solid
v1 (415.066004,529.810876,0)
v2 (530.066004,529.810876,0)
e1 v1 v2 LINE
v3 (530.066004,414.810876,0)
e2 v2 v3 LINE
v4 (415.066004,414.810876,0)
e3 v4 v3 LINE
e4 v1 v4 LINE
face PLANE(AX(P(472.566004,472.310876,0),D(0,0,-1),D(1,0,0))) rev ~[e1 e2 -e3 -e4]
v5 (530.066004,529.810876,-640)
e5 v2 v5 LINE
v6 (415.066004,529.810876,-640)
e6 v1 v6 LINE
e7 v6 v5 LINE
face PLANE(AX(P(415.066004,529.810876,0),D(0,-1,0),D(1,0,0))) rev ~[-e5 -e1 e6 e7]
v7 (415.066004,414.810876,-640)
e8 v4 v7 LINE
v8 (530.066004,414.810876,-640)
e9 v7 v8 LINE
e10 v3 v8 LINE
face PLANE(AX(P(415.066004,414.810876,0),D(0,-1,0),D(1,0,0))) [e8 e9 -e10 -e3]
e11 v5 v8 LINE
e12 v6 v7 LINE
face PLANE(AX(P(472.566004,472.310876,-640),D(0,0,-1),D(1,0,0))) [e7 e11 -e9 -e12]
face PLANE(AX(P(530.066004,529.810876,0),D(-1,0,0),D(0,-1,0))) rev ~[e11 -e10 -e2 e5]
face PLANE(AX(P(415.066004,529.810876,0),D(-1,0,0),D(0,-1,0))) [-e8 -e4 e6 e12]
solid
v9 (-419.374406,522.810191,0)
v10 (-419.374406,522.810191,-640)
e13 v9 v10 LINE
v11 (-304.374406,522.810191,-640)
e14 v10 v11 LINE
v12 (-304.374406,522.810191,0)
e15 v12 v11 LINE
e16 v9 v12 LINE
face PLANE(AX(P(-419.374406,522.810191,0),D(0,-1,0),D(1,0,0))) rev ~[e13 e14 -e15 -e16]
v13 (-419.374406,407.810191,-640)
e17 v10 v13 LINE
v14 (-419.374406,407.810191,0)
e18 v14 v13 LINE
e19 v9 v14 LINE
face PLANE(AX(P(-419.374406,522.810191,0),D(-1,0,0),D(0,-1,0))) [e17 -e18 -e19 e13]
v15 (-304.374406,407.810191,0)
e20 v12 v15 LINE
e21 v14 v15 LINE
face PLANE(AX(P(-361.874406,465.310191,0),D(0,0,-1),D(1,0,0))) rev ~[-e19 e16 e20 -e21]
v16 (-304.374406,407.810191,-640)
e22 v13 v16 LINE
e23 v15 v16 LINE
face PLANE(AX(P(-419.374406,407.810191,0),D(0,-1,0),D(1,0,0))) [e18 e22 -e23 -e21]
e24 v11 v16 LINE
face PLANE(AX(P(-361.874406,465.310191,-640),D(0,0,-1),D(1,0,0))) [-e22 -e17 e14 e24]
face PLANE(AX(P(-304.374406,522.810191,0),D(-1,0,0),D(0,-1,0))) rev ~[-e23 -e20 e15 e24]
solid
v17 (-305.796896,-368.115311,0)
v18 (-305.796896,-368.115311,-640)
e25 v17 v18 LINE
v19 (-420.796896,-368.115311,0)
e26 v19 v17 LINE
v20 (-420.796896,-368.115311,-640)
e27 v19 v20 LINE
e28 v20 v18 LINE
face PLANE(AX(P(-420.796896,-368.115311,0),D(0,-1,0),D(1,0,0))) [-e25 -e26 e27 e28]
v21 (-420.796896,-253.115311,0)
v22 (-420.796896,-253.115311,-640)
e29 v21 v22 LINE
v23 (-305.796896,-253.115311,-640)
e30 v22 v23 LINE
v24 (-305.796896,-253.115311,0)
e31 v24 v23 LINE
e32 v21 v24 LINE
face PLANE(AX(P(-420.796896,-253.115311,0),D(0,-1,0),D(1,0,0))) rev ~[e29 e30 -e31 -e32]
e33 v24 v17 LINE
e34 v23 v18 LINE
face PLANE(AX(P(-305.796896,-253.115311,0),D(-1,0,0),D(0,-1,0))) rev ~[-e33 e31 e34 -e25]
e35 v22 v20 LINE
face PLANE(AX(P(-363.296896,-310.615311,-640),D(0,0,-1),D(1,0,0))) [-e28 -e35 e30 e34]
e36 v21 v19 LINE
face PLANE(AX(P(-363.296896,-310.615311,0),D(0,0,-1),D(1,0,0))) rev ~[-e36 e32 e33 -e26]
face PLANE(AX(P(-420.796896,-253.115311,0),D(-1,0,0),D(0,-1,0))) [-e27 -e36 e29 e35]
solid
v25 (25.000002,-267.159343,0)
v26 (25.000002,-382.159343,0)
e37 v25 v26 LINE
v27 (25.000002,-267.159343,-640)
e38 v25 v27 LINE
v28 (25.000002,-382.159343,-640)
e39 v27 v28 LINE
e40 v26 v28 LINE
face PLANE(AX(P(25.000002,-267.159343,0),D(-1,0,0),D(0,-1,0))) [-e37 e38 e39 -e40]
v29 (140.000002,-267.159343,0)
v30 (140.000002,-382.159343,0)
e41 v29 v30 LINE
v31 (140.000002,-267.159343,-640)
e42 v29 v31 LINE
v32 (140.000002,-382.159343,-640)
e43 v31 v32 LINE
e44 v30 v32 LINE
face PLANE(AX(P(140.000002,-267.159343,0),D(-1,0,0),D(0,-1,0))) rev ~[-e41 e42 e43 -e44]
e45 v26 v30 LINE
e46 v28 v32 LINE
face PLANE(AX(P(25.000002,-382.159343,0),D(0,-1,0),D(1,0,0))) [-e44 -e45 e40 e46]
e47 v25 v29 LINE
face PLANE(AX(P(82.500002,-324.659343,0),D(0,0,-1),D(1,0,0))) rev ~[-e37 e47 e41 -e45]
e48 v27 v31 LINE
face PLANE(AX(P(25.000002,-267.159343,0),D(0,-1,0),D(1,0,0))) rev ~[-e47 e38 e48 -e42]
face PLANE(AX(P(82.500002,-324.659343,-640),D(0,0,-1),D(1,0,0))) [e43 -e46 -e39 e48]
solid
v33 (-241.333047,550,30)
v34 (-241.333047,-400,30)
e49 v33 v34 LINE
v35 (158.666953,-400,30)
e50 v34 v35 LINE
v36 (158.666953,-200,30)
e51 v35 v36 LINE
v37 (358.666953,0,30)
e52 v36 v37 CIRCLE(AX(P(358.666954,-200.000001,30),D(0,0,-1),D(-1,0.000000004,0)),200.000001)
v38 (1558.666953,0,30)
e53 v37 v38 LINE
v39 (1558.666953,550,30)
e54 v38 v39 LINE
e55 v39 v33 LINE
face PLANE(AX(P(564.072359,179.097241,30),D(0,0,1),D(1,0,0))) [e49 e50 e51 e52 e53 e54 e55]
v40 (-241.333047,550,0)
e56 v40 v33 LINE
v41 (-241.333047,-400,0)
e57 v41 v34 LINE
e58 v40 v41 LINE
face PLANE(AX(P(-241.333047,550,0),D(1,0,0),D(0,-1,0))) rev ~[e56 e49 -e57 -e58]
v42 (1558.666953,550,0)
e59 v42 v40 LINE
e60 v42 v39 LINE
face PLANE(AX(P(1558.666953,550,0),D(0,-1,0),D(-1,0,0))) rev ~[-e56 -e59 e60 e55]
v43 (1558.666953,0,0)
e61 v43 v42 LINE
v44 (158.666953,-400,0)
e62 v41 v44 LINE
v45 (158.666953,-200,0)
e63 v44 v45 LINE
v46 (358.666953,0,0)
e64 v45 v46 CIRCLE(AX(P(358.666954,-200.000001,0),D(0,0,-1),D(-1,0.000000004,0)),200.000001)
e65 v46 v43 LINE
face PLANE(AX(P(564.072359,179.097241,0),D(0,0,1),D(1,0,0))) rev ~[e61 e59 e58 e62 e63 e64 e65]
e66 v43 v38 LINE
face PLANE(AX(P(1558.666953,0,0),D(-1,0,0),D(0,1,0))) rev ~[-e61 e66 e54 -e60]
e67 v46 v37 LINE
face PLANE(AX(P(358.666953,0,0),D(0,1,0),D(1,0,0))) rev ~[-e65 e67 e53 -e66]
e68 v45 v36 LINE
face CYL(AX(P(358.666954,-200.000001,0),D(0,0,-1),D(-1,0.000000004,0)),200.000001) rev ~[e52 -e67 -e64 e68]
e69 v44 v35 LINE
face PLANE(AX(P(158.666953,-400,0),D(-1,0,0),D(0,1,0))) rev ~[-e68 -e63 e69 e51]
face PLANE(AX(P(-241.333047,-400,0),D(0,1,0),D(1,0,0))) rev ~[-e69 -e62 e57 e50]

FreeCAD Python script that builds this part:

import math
import FreeCAD as App
import Part
import Sketcher
Q = App.Units.Quantity

doc = App.newDocument("Part")
body = doc.addObject("PartDesign::Body", "Body")

sketch1 = body.newObject("Sketcher::SketchObject", "Sketch")
sketch1.AttachmentSupport = (doc.getObject("XY_Plane"), [""])
sketch1.MapMode = "FlatFace"
sketch1.addGeometry([
    Part.LineSegment(App.Vector(359, 0, 0), App.Vector(1559, 0, 0)),
    Part.LineSegment(App.Vector(1559, 0, 0), App.Vector(1559, 550, 0)),
    Part.LineSegment(App.Vector(1559, 550, 0), App.Vector(-241, 550, 0)),
    Part.LineSegment(App.Vector(-241, 550, 0), App.Vector(-241, -400, 0)),
    Part.LineSegment(App.Vector(-241, -400, 0), App.Vector(159, -400, 0)),
    Part.LineSegment(App.Vector(159, -400, 0), App.Vector(159, -200, 0)),
    Part.ArcOfCircle(Part.Circle(App.Vector(359, -200, 0), App.Vector(0, 0, 1), 200), math.radians(90), math.radians(180)),
], False)
sketch1.addConstraint([
    Sketcher.Constraint("Coincident", 0, 2, 1, 1),
    Sketcher.Constraint("Coincident", 1, 2, 2, 1),
    Sketcher.Constraint("Coincident", 2, 2, 3, 1),
    Sketcher.Constraint("Coincident", 3, 2, 4, 1),
    Sketcher.Constraint("Coincident", 4, 2, 5, 1),
    Sketcher.Constraint("Tangent", 5, 2, 6, 2),
    Sketcher.Constraint("Tangent", 6, 1, 0, 1),
    Sketcher.Constraint("Horizontal", 0),
    Sketcher.Constraint("Vertical", 1),
    Sketcher.Constraint("Horizontal", 2),
    Sketcher.Constraint("Vertical", 3),
    Sketcher.Constraint("Horizontal", 4),
    Sketcher.Constraint("Vertical", 5),
    Sketcher.Constraint("PointOnObject", 0, 2, -1),
    Sketcher.Constraint("Radius", 6, Q("200.000001 mm")),
    Sketcher.Constraint("DistanceX", 0, 1, 0, 2, Q("1200 mm")),
    Sketcher.Constraint("DistanceX", 2, 2, 2, 1, Q("1800 mm")),
    Sketcher.Constraint("DistanceY", 1, 1, 1, 2, Q("550 mm")),
    Sketcher.Constraint("DistanceY", 3, 2, 3, 1, Q("950 mm")),
    Sketcher.Constraint("DistanceX", -1, 1, 6, 3, Q("358.666954 mm")),
])
pad1 = body.newObject("PartDesign::Pad", "Pad")
pad1.Profile = sketch1
pad1.Length = 30
body2 = doc.addObject("PartDesign::Body", "Body001")
body2.AllowCompound = True

sketch2 = body2.newObject("Sketcher::SketchObject", "Sketch001")
sketch2.AttachmentSupport = (doc.getObject("XY_Plane001"), [""])
sketch2.MapMode = "FlatFace"
sketch2.addGeometry([
    Part.LineSegment(App.Vector(-419, 408, 0), App.Vector(-419, 523, 0)),
    Part.LineSegment(App.Vector(-419, 523, 0), App.Vector(-304, 523, 0)),
    Part.LineSegment(App.Vector(-304, 523, 0), App.Vector(-304, 408, 0)),
    Part.LineSegment(App.Vector(-304, 408, 0), App.Vector(-419, 408, 0)),
    Part.LineSegment(App.Vector(415, 415, 0), App.Vector(415, 530, 0)),
    Part.LineSegment(App.Vector(415, 530, 0), App.Vector(530, 530, 0)),
    Part.LineSegment(App.Vector(530, 530, 0), App.Vector(530, 415, 0)),
    Part.LineSegment(App.Vector(530, 415, 0), App.Vector(415, 415, 0)),
    Part.LineSegment(App.Vector(-421, -368, 0), App.Vector(-421, -253, 0)),
    Part.LineSegment(App.Vector(-421, -253, 0), App.Vector(-306, -253, 0)),
    Part.LineSegment(App.Vector(-306, -253, 0), App.Vector(-306, -368, 0)),
    Part.LineSegment(App.Vector(-306, -368, 0), App.Vector(-421, -368, 0)),
    Part.LineSegment(App.Vector(25, -382, 0), App.Vector(25, -267, 0)),
    Part.LineSegment(App.Vector(25, -267, 0), App.Vector(140, -267, 0)),
    Part.LineSegment(App.Vector(140, -267, 0), App.Vector(140, -382, 0)),
    Part.LineSegment(App.Vector(140, -382, 0), App.Vector(25, -382, 0)),
], False)
sketch2.addConstraint([
    Sketcher.Constraint("Coincident", 0, 2, 1, 1),
    Sketcher.Constraint("Coincident", 1, 2, 2, 1),
    Sketcher.Constraint("Coincident", 2, 2, 3, 1),
    Sketcher.Constraint("Coincident", 3, 2, 0, 1),
    Sketcher.Constraint("Coincident", 4, 2, 5, 1),
    Sketcher.Constraint("Coincident", 5, 2, 6, 1),
    Sketcher.Constraint("Coincident", 6, 2, 7, 1),
    Sketcher.Constraint("Coincident", 7, 2, 4, 1),
    Sketcher.Constraint("Coincident", 8, 2, 9, 1),
    Sketcher.Constraint("Coincident", 9, 2, 10, 1),
    Sketcher.Constraint("Coincident", 10, 2, 11, 1),
    Sketcher.Constraint("Coincident", 11, 2, 8, 1),
    Sketcher.Constraint("Coincident", 12, 2, 13, 1),
    Sketcher.Constraint("Coincident", 13, 2, 14, 1),
    Sketcher.Constraint("Coincident", 14, 2, 15, 1),
    Sketcher.Constraint("Coincident", 15, 2, 12, 1),
    Sketcher.Constraint("Vertical", 0),
    Sketcher.Constraint("Horizontal", 1),
    Sketcher.Constraint("Vertical", 2),
    Sketcher.Constraint("Horizontal", 3),
    Sketcher.Constraint("Vertical", 4),
    Sketcher.Constraint("Horizontal", 5),
    Sketcher.Constraint("Vertical", 6),
    Sketcher.Constraint("Horizontal", 7),
    Sketcher.Constraint("Vertical", 8),
    Sketcher.Constraint("Horizontal", 9),
    Sketcher.Constraint("Vertical", 10),
    Sketcher.Constraint("Horizontal", 11),
    Sketcher.Constraint("Vertical", 12),
    Sketcher.Constraint("Horizontal", 13),
    Sketcher.Constraint("Vertical", 14),
    Sketcher.Constraint("Horizontal", 15),
    Sketcher.Constraint("Equal", 3, 5),
    Sketcher.Constraint("Equal", 7, 9),
    Sketcher.Constraint("Equal", 11, 13),
    Sketcher.Constraint("Equal", 15, 0),
    Sketcher.Constraint("Equal", 2, 4),
    Sketcher.Constraint("Equal", 6, 8),
    Sketcher.Constraint("Equal", 10, 12),
    Sketcher.Constraint("DistanceX", 1, 1, 1, 2, Q("115 mm")),
    Sketcher.Constraint("DistanceX", -1, 1, 12, 2, Q("25.000002 mm")),
    Sketcher.Constraint("DistanceY", 8, 2, 3, 2, Q("660.925502 mm")),
    Sketcher.Constraint("DistanceX", 8, 2, 7, 2, Q("835.8629 mm")),
    Sketcher.Constraint("DistanceX", 9, 2, 12, 2, Q("330.796898 mm")),
    Sketcher.Constraint("DistanceY", -1, 1, 0, 2, Q("522.810191 mm")),
    Sketcher.Constraint("DistanceX", 1, 2, 4, 2, Q("719.44041 mm")),
    Sketcher.Constraint("DistanceY", 12, 2, 9, 2, Q("14.044032 mm")),
    Sketcher.Constraint("DistanceY", -1, 1, 4, 2, Q("529.810876 mm")),
])
pad2 = body2.newObject("PartDesign::Pad", "Pad001")
pad2.Profile = sketch2
pad2.Length = 640
pad2.Reversed = True

doc.recompute()
